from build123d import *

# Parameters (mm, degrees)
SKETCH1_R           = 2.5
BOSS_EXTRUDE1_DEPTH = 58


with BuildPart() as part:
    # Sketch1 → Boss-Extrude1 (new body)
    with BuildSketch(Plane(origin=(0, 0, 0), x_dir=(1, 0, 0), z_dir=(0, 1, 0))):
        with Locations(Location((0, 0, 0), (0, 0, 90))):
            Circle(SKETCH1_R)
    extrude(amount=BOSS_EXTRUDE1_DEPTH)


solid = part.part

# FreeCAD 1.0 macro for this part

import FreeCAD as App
import Part
import Sketcher
Q = App.Units.Quantity

doc = App.newDocument("Part")
body = doc.addObject("PartDesign::Body", "Body")

sketch1 = body.newObject("Sketcher::SketchObject", "Sketch")
sketch1.AttachmentSupport = (doc.getObject("XZ_Plane"), [""])
sketch1.MapMode = "FlatFace"
sketch1.addGeometry(Part.Circle(App.Vector(0, 0, 0), App.Vector(0, 0, 1), 2.5), False)
sketch1.addConstraint([
    Sketcher.Constraint("Coincident", 0, 3, -1, 1),
    Sketcher.Constraint("Diameter", 0, Q("5 mm")),
])
pad1 = body.newObject("PartDesign::Pad", "Pad")
pad1.Profile = sketch1
pad1.Length = 58
pad1.Reversed = True

doc.recompute()
